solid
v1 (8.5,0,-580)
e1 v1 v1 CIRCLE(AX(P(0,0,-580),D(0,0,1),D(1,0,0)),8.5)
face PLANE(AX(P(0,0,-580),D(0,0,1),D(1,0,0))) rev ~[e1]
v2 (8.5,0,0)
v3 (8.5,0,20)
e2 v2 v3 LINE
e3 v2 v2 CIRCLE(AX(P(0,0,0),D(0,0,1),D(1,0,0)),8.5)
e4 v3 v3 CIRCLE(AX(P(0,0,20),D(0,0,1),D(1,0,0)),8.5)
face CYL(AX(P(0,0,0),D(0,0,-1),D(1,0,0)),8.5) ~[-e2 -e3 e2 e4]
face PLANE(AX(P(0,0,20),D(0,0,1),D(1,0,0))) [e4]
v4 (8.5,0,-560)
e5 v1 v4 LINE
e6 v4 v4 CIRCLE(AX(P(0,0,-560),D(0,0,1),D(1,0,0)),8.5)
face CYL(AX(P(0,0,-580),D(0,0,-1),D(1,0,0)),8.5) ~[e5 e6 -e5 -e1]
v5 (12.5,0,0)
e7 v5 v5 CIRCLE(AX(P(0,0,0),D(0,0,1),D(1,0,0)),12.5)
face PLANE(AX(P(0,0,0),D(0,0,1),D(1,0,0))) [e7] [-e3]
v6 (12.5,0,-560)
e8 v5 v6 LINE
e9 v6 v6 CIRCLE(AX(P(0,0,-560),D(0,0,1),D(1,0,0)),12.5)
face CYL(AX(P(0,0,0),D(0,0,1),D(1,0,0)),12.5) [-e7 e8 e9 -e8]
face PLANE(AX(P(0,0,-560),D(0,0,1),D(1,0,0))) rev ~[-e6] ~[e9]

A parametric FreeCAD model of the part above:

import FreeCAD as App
import Part
import Sketcher
from FreeCAD import Vector
Q = App.Units.Quantity

doc = App.newDocument("Part")
params = doc.addObject("Spreadsheet::Sheet", "Params")
for row, (alias, value) in enumerate([
    ("sketch1_diameter", "25 mm"),
    ("pad1_length", "560 mm"),
    ("sketch2_diameter", "17 mm"),
    ("pad2_length", "20 mm"),
    ("linearpattern_pitch", "580 mm"),
], start=1):
    params.set(f"A{row}", alias)
    params.set(f"B{row}", "=" + value)
    params.setAlias(f"B{row}", alias)

body = doc.addObject("PartDesign::Body", "Body")

# Sketch on XY plane
sketch1 = body.newObject("Sketcher::SketchObject", "Sketch")
sketch1.AttachmentSupport = (doc.getObject("XY_Plane"), [""])
sketch1.MapMode = "FlatFace"
sketch1.addGeometry(Part.Circle(Vector(0, 0, 0), Vector(0, 0, 1), 12), False)
sketch1.addConstraint([
    Sketcher.Constraint("Coincident", 0, 3, -1, 1),
    Sketcher.Constraint("Diameter", 0, Q("25 mm")),
])
sketch1.setExpression("Constraints[1]", "Params.sketch1_diameter")
pad1 = body.newObject("PartDesign::Pad", "Pad")
pad1.Profile = sketch1
pad1.setExpression("Length", "Params.pad1_length")
pad1.Reversed = True

# Sketch on XY plane
sketch2 = body.newObject("Sketcher::SketchObject", "Sketch001")
sketch2.AttachmentSupport = (doc.getObject("XY_Plane"), [""])
sketch2.MapMode = "FlatFace"
sketch2.addGeometry(Part.Circle(Vector(0, 0, 0), Vector(0, 0, 1), 8), False)
sketch2.addConstraint([
    Sketcher.Constraint("Coincident", 0, 3, -1, 1),
    Sketcher.Constraint("Diameter", 0, Q("17 mm")),
])
sketch2.setExpression("Constraints[1]", "Params.sketch2_diameter")
pad2 = body.newObject("PartDesign::Pad", "Pad001")
pad2.Profile = sketch2
pad2.setExpression("Length", "Params.pad2_length")
doc.recompute()

linearpattern = body.newObject("PartDesign::LinearPattern", "LinearPattern")
linearpattern.Originals = [pad2]
linearpattern.Direction = (doc.getObject("Z_Axis"), [""])
linearpattern.Mode = "offset"
linearpattern.setExpression("Offset", "Params.linearpattern_pitch")
linearpattern.Occurrences = 2
linearpattern.Reversed = True
body.Tip = linearpattern

doc.recompute()
